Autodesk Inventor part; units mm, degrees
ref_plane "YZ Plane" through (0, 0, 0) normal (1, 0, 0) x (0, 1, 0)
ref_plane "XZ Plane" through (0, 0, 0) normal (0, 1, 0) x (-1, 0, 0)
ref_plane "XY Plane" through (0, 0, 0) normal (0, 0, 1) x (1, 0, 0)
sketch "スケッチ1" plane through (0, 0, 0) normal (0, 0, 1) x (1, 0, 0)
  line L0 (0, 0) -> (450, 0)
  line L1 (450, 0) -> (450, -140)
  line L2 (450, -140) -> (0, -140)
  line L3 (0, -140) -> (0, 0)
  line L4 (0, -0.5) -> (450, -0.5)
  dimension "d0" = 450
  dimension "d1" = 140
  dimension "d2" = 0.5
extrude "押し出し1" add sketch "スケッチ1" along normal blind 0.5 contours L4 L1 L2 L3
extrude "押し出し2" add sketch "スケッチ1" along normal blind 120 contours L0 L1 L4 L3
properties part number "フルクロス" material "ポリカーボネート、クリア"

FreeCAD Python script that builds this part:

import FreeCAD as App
import Part
import Sketcher
Q = App.Units.Quantity

doc = App.newDocument("Part")
body = doc.addObject("PartDesign::Body", "Body")

# Sketch on XY plane
sketch1 = body.newObject("Sketcher::SketchObject", "Sketch")
sketch1.AttachmentSupport = (doc.getObject("XY_Plane"), [""])
sketch1.MapMode = "FlatFace"
sketch1.addGeometry(Part.LineSegment(App.Vector(450, 0, 0), App.Vector(0, 0, 0)), False)
sketch1.addGeometry(Part.LineSegment(App.Vector(0, 0, 0), App.Vector(0, -140, 0)), False)
sketch1.addGeometry(Part.LineSegment(App.Vector(0, -140, 0), App.Vector(450, -140, 0)), False)
sketch1.addGeometry(Part.LineSegment(App.Vector(450, -140, 0), App.Vector(450, 0, 0)), False)
sketch1.addConstraint(Sketcher.Constraint("Coincident", 0, 2, 1, 1))
sketch1.addConstraint(Sketcher.Constraint("Coincident", 1, 2, 2, 1))
sketch1.addConstraint(Sketcher.Constraint("Coincident", 2, 2, 3, 1))
sketch1.addConstraint(Sketcher.Constraint("Coincident", 3, 2, 0, 1))
sketch1.addConstraint(Sketcher.Constraint("Horizontal", 0))
sketch1.addConstraint(Sketcher.Constraint("Vertical", 1))
sketch1.addConstraint(Sketcher.Constraint("Horizontal", 2))
sketch1.addConstraint(Sketcher.Constraint("Vertical", 3))
sketch1.addConstraint(Sketcher.Constraint("PointOnObject", 0, 2, -2))
sketch1.addConstraint(Sketcher.Constraint("DistanceX", 0, 2, 0, 1, Q("450 mm")))
sketch1.addConstraint(Sketcher.Constraint("DistanceY", 1, 2, -1, 1, Q("140 mm")))
sketch1.addConstraint(Sketcher.Constraint("DistanceY", 0, 2, -1, 1, Q("0.5 mm")))
pad1 = body.newObject("PartDesign::Pad", "Pad")
pad1.Profile = sketch1
pad1.Length = 0.5

# Sketch on XY plane
sketch2 = body.newObject("Sketcher::SketchObject", "Sketch001")
sketch2.AttachmentSupport = (doc.getObject("XY_Plane"), [""])
sketch2.MapMode = "FlatFace"
sketch2.addGeometry(Part.LineSegment(App.Vector(450, 0, 0), App.Vector(0, 0, 0)), False)
sketch2.addGeometry(Part.LineSegment(App.Vector(0, 0, 0), App.Vector(0, -0.5, 0)), False)
sketch2.addGeometry(Part.LineSegment(App.Vector(0, -0.5, 0), App.Vector(450, -0.5, 0)), False)
sketch2.addGeometry(Part.LineSegment(App.Vector(450, -0.5, 0), App.Vector(450, 0, 0)), False)
sketch2.addConstraint(Sketcher.Constraint("Coincident", 0, 2, 1, 1))
sketch2.addConstraint(Sketcher.Constraint("Coincident", 1, 2, 2, 1))
sketch2.addConstraint(Sketcher.Constraint("Coincident", 2, 2, 3, 1))
sketch2.addConstraint(Sketcher.Constraint("Coincident", 3, 2, 0, 1))
sketch2.addConstraint(Sketcher.Constraint("Horizontal", 0))
sketch2.addConstraint(Sketcher.Constraint("Vertical", 1))
sketch2.addConstraint(Sketcher.Constraint("Horizontal", 2))
sketch2.addConstraint(Sketcher.Constraint("Vertical", 3))
sketch2.addConstraint(Sketcher.Constraint("Coincident", 0, 2, -1, 1))
sketch2.addConstraint(Sketcher.Constraint("DistanceX", 0, 2, 0, 1, Q("450 mm")))
sketch2.addConstraint(Sketcher.Constraint("DistanceY", 1, 2, 1, 1, Q("0.5 mm")))
pad2 = body.newObject("PartDesign::Pad", "Pad001")
pad2.Profile = sketch2
pad2.Length = 120

doc.recompute()
